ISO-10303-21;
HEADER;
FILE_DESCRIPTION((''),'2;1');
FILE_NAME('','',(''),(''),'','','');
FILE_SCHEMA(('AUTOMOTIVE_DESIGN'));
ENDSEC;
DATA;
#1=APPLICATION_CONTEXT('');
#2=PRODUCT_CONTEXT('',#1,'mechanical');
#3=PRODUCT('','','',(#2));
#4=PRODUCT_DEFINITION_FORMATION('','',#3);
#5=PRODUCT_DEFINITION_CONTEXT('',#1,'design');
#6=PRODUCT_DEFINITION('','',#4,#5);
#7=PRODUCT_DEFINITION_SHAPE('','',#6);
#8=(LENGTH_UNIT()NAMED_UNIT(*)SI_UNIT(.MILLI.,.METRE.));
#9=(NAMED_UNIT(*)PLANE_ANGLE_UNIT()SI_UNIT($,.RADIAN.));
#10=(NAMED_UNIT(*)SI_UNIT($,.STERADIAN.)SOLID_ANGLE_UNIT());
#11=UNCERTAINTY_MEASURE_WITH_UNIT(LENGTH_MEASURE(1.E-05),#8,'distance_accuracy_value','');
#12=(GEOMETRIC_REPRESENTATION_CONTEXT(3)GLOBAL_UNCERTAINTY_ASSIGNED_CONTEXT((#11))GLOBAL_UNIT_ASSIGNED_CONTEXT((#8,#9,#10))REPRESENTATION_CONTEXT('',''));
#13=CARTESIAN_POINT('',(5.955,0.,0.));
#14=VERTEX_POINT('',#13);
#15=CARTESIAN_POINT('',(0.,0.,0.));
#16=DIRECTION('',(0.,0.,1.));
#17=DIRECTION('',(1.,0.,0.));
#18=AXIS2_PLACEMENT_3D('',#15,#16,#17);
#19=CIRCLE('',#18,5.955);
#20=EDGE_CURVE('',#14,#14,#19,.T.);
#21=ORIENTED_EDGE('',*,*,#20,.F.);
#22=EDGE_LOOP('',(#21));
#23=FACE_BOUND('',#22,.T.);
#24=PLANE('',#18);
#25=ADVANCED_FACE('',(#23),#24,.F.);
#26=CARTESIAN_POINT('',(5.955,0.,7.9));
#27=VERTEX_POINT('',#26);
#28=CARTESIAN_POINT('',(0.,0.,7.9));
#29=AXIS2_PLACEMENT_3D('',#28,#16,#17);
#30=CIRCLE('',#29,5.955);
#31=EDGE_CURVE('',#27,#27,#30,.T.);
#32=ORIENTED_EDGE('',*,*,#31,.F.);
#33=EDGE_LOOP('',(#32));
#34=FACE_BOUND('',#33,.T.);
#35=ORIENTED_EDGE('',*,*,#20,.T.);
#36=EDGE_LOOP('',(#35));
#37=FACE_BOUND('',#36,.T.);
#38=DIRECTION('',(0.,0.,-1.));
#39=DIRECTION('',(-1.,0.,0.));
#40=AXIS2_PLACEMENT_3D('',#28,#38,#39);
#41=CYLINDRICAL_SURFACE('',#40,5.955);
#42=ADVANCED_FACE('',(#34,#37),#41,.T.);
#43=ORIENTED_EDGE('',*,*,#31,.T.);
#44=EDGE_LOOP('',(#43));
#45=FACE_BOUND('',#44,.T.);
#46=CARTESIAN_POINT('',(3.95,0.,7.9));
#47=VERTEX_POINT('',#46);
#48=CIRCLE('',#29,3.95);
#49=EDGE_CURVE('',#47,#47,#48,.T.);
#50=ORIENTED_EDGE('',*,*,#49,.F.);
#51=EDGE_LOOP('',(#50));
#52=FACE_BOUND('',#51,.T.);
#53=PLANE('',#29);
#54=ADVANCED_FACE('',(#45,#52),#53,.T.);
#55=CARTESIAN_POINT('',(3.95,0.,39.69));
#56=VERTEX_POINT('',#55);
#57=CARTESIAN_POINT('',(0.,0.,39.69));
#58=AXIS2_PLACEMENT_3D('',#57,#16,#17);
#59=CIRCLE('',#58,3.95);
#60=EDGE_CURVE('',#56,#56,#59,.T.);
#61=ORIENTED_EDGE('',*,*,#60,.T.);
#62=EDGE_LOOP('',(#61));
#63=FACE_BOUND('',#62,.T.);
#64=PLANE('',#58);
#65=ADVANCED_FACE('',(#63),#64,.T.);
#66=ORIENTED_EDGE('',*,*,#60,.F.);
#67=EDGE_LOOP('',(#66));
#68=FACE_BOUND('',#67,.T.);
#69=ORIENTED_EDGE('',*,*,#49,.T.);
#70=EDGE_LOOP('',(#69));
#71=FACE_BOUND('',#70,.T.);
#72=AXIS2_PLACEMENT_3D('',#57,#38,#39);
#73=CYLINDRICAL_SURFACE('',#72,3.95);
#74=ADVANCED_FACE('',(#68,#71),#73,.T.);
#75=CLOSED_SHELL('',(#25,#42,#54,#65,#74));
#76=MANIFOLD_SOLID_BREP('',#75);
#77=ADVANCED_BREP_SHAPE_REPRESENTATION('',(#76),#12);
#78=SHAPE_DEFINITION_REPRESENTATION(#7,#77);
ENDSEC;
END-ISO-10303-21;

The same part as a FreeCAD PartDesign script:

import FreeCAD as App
import Part
import Sketcher
from FreeCAD import Vector
Q = App.Units.Quantity

doc = App.newDocument("Part")
body = doc.addObject("PartDesign::Body", "Body")

# Sketch on XY plane
sketch1 = doc.addObject("Sketcher::SketchObject", "Sketch")
body.addObject(sketch1)
sketch1.AttachmentSupport = (doc.XY_Plane, [""])
sketch1.MapMode = "FlatFace"
sketch1.addGeometry(Part.Circle(Vector(0, 0, 0), Vector(0, 0, 1), 6), False)
sketch1.addConstraint(Sketcher.Constraint("Coincident", 0, 3, -1, 1))
sketch1.addConstraint(Sketcher.Constraint("Diameter", 0, Q("11.91 mm")))
pad1 = doc.addObject("PartDesign::Pad", "Pad")
body.addObject(pad1)
pad1.Profile = sketch1
pad1.Length = 7.9

# Sketch on XY plane
sketch2 = doc.addObject("Sketcher::SketchObject", "Sketch001")
body.addObject(sketch2)
sketch2.AttachmentSupport = (doc.XY_Plane, [""])
sketch2.MapMode = "FlatFace"
sketch2.AttachmentOffset = App.Placement(Vector(0, 0, 7.9), App.Rotation())
sketch2.addGeometry(Part.Circle(Vector(0, 0, 0), Vector(0, 0, 1), 4), False)
sketch2.addConstraint(Sketcher.Constraint("Coincident", 0, 3, -1, 1))
sketch2.addConstraint(Sketcher.Constraint("Diameter", 0, Q("7.9 mm")))
pad2 = doc.addObject("PartDesign::Pad", "Pad001")
body.addObject(pad2)
pad2.Profile = sketch2
pad2.Length = 31.79

doc.recompute()
